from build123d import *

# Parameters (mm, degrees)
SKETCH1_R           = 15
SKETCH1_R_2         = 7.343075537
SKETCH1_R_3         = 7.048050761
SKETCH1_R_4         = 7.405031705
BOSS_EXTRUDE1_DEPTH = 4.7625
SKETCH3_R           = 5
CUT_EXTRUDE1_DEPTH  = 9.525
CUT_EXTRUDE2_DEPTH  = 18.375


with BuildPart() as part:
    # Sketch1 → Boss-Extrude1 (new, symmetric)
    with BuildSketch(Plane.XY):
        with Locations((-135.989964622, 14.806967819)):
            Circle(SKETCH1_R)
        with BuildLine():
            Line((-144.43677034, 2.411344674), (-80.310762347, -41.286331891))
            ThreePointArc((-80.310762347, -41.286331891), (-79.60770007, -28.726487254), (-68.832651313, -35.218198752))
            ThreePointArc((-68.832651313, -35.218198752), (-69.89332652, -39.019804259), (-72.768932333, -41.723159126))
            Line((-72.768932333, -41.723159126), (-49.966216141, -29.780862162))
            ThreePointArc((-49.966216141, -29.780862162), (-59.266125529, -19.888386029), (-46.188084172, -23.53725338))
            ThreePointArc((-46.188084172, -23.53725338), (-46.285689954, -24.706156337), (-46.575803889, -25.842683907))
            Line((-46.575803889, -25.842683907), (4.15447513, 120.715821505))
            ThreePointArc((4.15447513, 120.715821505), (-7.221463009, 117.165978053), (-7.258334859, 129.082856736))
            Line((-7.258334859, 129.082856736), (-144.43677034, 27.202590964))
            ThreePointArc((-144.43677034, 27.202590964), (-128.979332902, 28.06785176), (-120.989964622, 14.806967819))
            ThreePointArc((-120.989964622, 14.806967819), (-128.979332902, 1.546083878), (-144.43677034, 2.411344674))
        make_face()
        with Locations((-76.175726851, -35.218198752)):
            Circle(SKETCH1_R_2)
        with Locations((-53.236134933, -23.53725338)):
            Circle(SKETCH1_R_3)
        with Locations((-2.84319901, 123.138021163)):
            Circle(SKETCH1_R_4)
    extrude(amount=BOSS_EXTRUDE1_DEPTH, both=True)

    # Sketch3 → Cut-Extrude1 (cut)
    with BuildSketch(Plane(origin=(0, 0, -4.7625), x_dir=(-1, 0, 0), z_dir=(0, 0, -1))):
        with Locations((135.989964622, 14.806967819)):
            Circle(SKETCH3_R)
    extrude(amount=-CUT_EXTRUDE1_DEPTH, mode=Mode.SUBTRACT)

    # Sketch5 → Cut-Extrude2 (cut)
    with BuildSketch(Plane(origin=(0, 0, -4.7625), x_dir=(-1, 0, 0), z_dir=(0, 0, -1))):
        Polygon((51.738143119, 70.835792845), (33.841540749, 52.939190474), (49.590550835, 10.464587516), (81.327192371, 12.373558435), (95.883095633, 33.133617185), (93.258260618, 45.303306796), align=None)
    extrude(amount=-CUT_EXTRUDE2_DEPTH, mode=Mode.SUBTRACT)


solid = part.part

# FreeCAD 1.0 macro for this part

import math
import FreeCAD as App
import Part
import Sketcher
Q = App.Units.Quantity


def add_polygon(sketch, points):
    """Adds a closed chain of lines whose ends are joined by coincident constraints."""
    first, n = sketch.GeometryCount, len(points)
    for a, b in zip(points, points[1:] + points[:1]):
        sketch.addGeometry(Part.LineSegment(App.Vector(*a, 0), App.Vector(*b, 0)), False)
    for i in range(n):
        sketch.addConstraint(Sketcher.Constraint("Coincident", first + i, 2, first + (i + 1) % n, 1))

doc = App.newDocument("Part")
params = doc.addObject("Spreadsheet::Sheet", "Params")
for row, (alias, value) in enumerate([
    ("sketch1_radius", "15 mm"),
    ("pad1_length", "9.525 mm"),
    ("sketch2_diameter", "10 mm"),
    ("pocket1_length", "9.525 mm"),
    ("pocket2_length", "18.375 mm"),
], start=1):
    params.set(f"A{row}", alias)
    params.set(f"B{row}", "=" + value)
    params.setAlias(f"B{row}", alias)

body = doc.addObject("PartDesign::Body", "Body")

sketch1 = body.newObject("Sketcher::SketchObject", "Sketch")
sketch1.AttachmentSupport = (doc.getObject("XY_Plane"), [""])
sketch1.MapMode = "FlatFace"
sketch1.addGeometry([
    Part.LineSegment(App.Vector(-7.258335, 129.082857, 0), App.Vector(-144.43677, 27.202591, 0)),
    Part.ArcOfCircle(Part.Circle(App.Vector(-135.989965, 14.806968, 0), App.Vector(0, 0, 1), 15), math.radians(124.271869), math.radians(235.728131)),
    Part.LineSegment(App.Vector(-144.43677, 2.411345, 0), App.Vector(-80.310762, -41.286332, 0)),
    Part.ArcOfCircle(Part.Circle(App.Vector(-76.175727, -35.218199, 0), App.Vector(0, 0, 1), 7.343076), math.radians(-124.271869), math.radians(-62.357935)),
    Part.LineSegment(App.Vector(-72.768932, -41.723159, 0), App.Vector(-49.966216, -29.780862, 0)),
    Part.ArcOfCircle(Part.Circle(App.Vector(-53.236135, -23.537253, 0), App.Vector(0, 0, 1), 7.048051), math.radians(-62.357935), math.radians(-19.092964)),
    Part.LineSegment(App.Vector(-46.575804, -25.842684, 0), App.Vector(4.154475, 120.715822, 0)),
    Part.ArcOfCircle(Part.Circle(App.Vector(-2.843199, 123.138021, 0), App.Vector(0, 0, 1), 7.405032), math.radians(-19.092964), math.radians(126.600691)),
], False)
sketch1.addConstraint([
    Sketcher.Constraint("Coincident", 0, 2, 1, 1),
    Sketcher.Constraint("Coincident", 1, 2, 2, 1),
    Sketcher.Constraint("Coincident", 2, 2, 3, 1),
    Sketcher.Constraint("Coincident", 3, 2, 4, 1),
    Sketcher.Constraint("Coincident", 4, 2, 5, 1),
    Sketcher.Constraint("Coincident", 5, 2, 6, 1),
    Sketcher.Constraint("Coincident", 6, 2, 7, 1),
    Sketcher.Constraint("Coincident", 7, 2, 0, 1),
    Sketcher.Constraint("Radius", 1, Q("15 mm")),
    Sketcher.Constraint("Radius", 5, Q("7.048051 mm")),
    Sketcher.Constraint("Radius", 7, Q("7.405032 mm")),
    Sketcher.Constraint("Radius", 3, Q("7.343076 mm")),
    Sketcher.Constraint("DistanceY", 3, 3, -1, 1, Q("35.218199 mm")),
    Sketcher.Constraint("DistanceX", 7, 3, -1, 1, Q("2.843199 mm")),
    Sketcher.Constraint("DistanceY", 5, 3, 1, 2, Q("25.948598 mm")),
    Sketcher.Constraint("DistanceY", 2, 2, 1, 3, Q("56.0933 mm")),
    Sketcher.Constraint("DistanceY", 6, 2, 7, 3, Q("2.4222 mm")),
    Sketcher.Constraint("DistanceX", 3, 3, 6, 2, Q("80.330202 mm")),
    Sketcher.Constraint("DistanceX", 5, 3, 7, 2, Q("45.9778 mm")),
    Sketcher.Constraint("DistanceY", -1, 1, 7, 3, Q("123.138021 mm")),
    Sketcher.Constraint("DistanceX", 0, 2, -1, 1, Q("144.43677 mm")),
    Sketcher.Constraint("DistanceY", -1, 1, 0, 2, Q("27.202591 mm")),
    Sketcher.Constraint("DistanceX", 1, 2, -1, 1, Q("144.43677 mm")),
    Sketcher.Constraint("DistanceY", 2, 2, -1, 1, Q("41.286332 mm")),
    Sketcher.Constraint("DistanceY", 3, 2, -1, 1, Q("41.723159 mm")),
    Sketcher.Constraint("DistanceX", 3, 3, 5, 3, Q("22.939592 mm")),
    Sketcher.Constraint("DistanceX", 5, 3, 4, 2, Q("3.269919 mm")),
    Sketcher.Constraint("DistanceY", 4, 2, 5, 2, Q("3.938178 mm")),
])
sketch1.setExpression("Constraints[8]", "Params.sketch1_radius")
pad1 = body.newObject("PartDesign::Pad", "Pad")
pad1.Profile = sketch1
pad1.setExpression("Length", "Params.pad1_length")
pad1.Midplane = True

sketch2 = body.newObject("Sketcher::SketchObject", "Sketch001")
sketch2.AttachmentSupport = (doc.getObject("XY_Plane"), [""])
sketch2.MapMode = "FlatFace"
sketch2.AttachmentOffset = App.Placement(App.Vector(0, 0, -4.7625), App.Rotation())
sketch2.addGeometry(Part.Circle(App.Vector(-136, 15, 0), App.Vector(0, 0, 1), 5), False)
sketch2.addConstraint([
    Sketcher.Constraint("Diameter", 0, Q("10 mm")),
    Sketcher.Constraint("DistanceX", 0, 3, -1, 1, Q("135.989965 mm")),
    Sketcher.Constraint("DistanceY", -1, 1, 0, 3, Q("14.806968 mm")),
])
sketch2.setExpression("Constraints[0]", "Params.sketch2_diameter")
pocket1 = body.newObject("PartDesign::Pocket", "Pocket")
pocket1.Profile = sketch2
pocket1.setExpression("Length", "Params.pocket1_length")
pocket1.Reversed = True

sketch3 = body.newObject("Sketcher::SketchObject", "Sketch002")
sketch3.AttachmentSupport = (doc.getObject("XY_Plane"), [""])
sketch3.MapMode = "FlatFace"
sketch3.AttachmentOffset = App.Placement(App.Vector(0, 0, -4.7625), App.Rotation())
add_polygon(sketch3, [(-52, 71), (-34, 53), (-50, 10), (-81, 12), (-96, 33), (-93, 45)])
sketch3.addConstraint([
    Sketcher.Constraint("Angle", 0, Q("-45 deg")),
    Sketcher.Constraint("DistanceX", 0, 2, -1, 1, Q("33.841541 mm")),
    Sketcher.Constraint("DistanceY", -1, 1, 0, 2, Q("52.93919 mm")),
    Sketcher.Constraint("DistanceX", 1, 2, -1, 1, Q("49.590551 mm")),
    Sketcher.Constraint("DistanceY", -1, 1, 2, 2, Q("12.373558 mm")),
    Sketcher.Constraint("DistanceX", 4, 2, -1, 1, Q("93.258261 mm")),
    Sketcher.Constraint("DistanceX", 2, 2, 1, 2, Q("31.736642 mm")),
    Sketcher.Constraint("DistanceY", 1, 2, 2, 2, Q("1.908971 mm")),
    Sketcher.Constraint("DistanceY", 2, 2, 3, 2, Q("20.760059 mm")),
    Sketcher.Constraint("DistanceY", 3, 2, 4, 2, Q("12.16969 mm")),
    Sketcher.Constraint("DistanceX", 2, 2, 5, 2, Q("29.589049 mm")),
    Sketcher.Constraint("Distance", 3, Q("25.354573 mm")),
])
pocket2 = body.newObject("PartDesign::Pocket", "Pocket001")
pocket2.Profile = sketch3
pocket2.setExpression("Length", "Params.pocket2_length")
pocket2.Reversed = True

doc.recompute()
